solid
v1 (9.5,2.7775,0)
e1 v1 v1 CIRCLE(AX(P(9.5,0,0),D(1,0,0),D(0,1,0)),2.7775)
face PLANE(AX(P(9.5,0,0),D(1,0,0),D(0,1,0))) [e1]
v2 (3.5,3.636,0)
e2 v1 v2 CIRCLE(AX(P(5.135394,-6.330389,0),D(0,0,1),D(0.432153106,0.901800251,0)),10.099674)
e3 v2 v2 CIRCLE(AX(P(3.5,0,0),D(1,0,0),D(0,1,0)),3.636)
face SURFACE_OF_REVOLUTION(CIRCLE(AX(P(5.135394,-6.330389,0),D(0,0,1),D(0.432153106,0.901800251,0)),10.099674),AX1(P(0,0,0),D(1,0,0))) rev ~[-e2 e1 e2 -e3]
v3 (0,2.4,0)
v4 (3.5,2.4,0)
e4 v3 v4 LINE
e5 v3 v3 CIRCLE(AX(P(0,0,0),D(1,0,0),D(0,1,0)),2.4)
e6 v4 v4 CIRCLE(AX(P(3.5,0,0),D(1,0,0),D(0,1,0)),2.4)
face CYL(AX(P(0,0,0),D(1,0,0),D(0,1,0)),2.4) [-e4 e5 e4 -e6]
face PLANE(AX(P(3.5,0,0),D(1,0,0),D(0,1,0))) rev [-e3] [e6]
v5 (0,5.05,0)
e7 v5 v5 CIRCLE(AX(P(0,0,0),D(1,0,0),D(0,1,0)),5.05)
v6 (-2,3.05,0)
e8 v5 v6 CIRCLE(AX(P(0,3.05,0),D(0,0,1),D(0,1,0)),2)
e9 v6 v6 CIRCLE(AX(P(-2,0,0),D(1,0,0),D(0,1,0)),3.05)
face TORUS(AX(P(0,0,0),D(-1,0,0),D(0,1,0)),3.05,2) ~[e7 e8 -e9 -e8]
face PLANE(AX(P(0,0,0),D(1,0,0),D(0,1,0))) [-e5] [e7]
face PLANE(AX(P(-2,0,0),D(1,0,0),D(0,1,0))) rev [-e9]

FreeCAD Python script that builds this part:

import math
import FreeCAD as App
import Part
import Sketcher

V = App.Vector
Q = App.Units.Quantity

doc = App.newDocument("Part")
params = doc.addObject("Spreadsheet::Sheet", "Params")
for row, (alias, value) in enumerate([
    ("sketch1_radius", "2 mm"),
    ("sketch1_radius2", "10.1 mm"),
    ("sketch1_width", "3.5 mm"),
    ("sketch1_height", "2.65 mm"),
    ("sketch1_height2", "3.05 mm"),
    ("revolution_angle", "360 deg"),
], start=1):
    params.set(f"A{row}", alias)
    params.set(f"B{row}", "=" + value)
    params.setAlias(f"B{row}", alias)

body = doc.addObject("PartDesign::Body", "Body")

sketch1 = doc.addObject("Sketcher::SketchObject", "Sketch")
body.addObject(sketch1)
sketch1.AttachmentSupport = (doc.XY_Plane, [""])
sketch1.MapMode = "FlatFace"
sketch1.addGeometry([
    Part.LineSegment(V(-2, 0, 0), V(9.5, 0, 0)),
    Part.LineSegment(V(9.5, 0, 0), V(9.5, 2.8, 0)),
    Part.ArcOfCircle(Part.Circle(V(5.1, -6.3, 0), V(0, 0, 1), 10.1), math.radians(64), math.radians(99)),
    Part.LineSegment(V(3.5, 3.6, 0), V(3.5, 2.4, 0)),
    Part.LineSegment(V(3.5, 2.4, 0), V(0, 2.4, 0)),
    Part.LineSegment(V(0, 2.4, 0), V(0, 5, 0)),
    Part.ArcOfCircle(Part.Circle(V(0, 3, 0), V(0, 0, 1), 2), math.radians(90), math.radians(180)),
    Part.LineSegment(V(-2, 3, 0), V(-2, 0, 0)),
], False)
sketch1.addConstraint([
    Sketcher.Constraint("Coincident", 0, 2, 1, 1),
    Sketcher.Constraint("Coincident", 1, 2, 2, 1),
    Sketcher.Constraint("Coincident", 2, 2, 3, 1),
    Sketcher.Constraint("Coincident", 3, 2, 4, 1),
    Sketcher.Constraint("Coincident", 4, 2, 5, 1),
    Sketcher.Constraint("Coincident", 5, 2, 6, 1),
    Sketcher.Constraint("Tangent", 6, 2, 7, 1),
    Sketcher.Constraint("Coincident", 7, 2, 0, 1),
    Sketcher.Constraint("Horizontal", 0),
    Sketcher.Constraint("Vertical", 1),
    Sketcher.Constraint("Vertical", 3),
    Sketcher.Constraint("Horizontal", 4),
    Sketcher.Constraint("Vertical", 5),
    Sketcher.Constraint("Vertical", 7),
    Sketcher.Constraint("PointOnObject", 6, 3, -2),
    Sketcher.Constraint("PointOnObject", 0, 2, -1),
    Sketcher.Constraint("PointOnObject", 4, 2, -2),
    Sketcher.Constraint("Radius", 6, Q("2 mm")),
    Sketcher.Constraint("Radius", 2, Q("10.1 mm")),
    Sketcher.Constraint("DistanceX", 4, 2, 4, 1, Q("3.5 mm")),
    Sketcher.Constraint("DistanceX", 2, 2, 1, 2, Q("6 mm")),
    Sketcher.Constraint("DistanceY", 5, 1, 5, 2, Q("2.65 mm")),
    Sketcher.Constraint("DistanceY", 7, 2, 7, 1, Q("3.05 mm")),
    Sketcher.Constraint("DistanceY", 3, 2, 3, 1, Q("1.236 mm")),
    Sketcher.Constraint("DistanceY", 1, 1, 1, 2, Q("2.7775 mm")),
])
sketch1.setExpression("Constraints[17]", "Params.sketch1_radius")
sketch1.setExpression("Constraints[18]", "Params.sketch1_radius2")
sketch1.setExpression("Constraints[19]", "Params.sketch1_width")
sketch1.setExpression("Constraints[21]", "Params.sketch1_height")
sketch1.setExpression("Constraints[22]", "Params.sketch1_height2")
revolution = doc.addObject("PartDesign::Revolution", "Revolution")
body.addObject(revolution)
revolution.Profile = sketch1
revolution.ReferenceAxis = (sketch1, ["H_Axis"])
revolution.setExpression("Angle", "Params.revolution_angle")

doc.recompute()
